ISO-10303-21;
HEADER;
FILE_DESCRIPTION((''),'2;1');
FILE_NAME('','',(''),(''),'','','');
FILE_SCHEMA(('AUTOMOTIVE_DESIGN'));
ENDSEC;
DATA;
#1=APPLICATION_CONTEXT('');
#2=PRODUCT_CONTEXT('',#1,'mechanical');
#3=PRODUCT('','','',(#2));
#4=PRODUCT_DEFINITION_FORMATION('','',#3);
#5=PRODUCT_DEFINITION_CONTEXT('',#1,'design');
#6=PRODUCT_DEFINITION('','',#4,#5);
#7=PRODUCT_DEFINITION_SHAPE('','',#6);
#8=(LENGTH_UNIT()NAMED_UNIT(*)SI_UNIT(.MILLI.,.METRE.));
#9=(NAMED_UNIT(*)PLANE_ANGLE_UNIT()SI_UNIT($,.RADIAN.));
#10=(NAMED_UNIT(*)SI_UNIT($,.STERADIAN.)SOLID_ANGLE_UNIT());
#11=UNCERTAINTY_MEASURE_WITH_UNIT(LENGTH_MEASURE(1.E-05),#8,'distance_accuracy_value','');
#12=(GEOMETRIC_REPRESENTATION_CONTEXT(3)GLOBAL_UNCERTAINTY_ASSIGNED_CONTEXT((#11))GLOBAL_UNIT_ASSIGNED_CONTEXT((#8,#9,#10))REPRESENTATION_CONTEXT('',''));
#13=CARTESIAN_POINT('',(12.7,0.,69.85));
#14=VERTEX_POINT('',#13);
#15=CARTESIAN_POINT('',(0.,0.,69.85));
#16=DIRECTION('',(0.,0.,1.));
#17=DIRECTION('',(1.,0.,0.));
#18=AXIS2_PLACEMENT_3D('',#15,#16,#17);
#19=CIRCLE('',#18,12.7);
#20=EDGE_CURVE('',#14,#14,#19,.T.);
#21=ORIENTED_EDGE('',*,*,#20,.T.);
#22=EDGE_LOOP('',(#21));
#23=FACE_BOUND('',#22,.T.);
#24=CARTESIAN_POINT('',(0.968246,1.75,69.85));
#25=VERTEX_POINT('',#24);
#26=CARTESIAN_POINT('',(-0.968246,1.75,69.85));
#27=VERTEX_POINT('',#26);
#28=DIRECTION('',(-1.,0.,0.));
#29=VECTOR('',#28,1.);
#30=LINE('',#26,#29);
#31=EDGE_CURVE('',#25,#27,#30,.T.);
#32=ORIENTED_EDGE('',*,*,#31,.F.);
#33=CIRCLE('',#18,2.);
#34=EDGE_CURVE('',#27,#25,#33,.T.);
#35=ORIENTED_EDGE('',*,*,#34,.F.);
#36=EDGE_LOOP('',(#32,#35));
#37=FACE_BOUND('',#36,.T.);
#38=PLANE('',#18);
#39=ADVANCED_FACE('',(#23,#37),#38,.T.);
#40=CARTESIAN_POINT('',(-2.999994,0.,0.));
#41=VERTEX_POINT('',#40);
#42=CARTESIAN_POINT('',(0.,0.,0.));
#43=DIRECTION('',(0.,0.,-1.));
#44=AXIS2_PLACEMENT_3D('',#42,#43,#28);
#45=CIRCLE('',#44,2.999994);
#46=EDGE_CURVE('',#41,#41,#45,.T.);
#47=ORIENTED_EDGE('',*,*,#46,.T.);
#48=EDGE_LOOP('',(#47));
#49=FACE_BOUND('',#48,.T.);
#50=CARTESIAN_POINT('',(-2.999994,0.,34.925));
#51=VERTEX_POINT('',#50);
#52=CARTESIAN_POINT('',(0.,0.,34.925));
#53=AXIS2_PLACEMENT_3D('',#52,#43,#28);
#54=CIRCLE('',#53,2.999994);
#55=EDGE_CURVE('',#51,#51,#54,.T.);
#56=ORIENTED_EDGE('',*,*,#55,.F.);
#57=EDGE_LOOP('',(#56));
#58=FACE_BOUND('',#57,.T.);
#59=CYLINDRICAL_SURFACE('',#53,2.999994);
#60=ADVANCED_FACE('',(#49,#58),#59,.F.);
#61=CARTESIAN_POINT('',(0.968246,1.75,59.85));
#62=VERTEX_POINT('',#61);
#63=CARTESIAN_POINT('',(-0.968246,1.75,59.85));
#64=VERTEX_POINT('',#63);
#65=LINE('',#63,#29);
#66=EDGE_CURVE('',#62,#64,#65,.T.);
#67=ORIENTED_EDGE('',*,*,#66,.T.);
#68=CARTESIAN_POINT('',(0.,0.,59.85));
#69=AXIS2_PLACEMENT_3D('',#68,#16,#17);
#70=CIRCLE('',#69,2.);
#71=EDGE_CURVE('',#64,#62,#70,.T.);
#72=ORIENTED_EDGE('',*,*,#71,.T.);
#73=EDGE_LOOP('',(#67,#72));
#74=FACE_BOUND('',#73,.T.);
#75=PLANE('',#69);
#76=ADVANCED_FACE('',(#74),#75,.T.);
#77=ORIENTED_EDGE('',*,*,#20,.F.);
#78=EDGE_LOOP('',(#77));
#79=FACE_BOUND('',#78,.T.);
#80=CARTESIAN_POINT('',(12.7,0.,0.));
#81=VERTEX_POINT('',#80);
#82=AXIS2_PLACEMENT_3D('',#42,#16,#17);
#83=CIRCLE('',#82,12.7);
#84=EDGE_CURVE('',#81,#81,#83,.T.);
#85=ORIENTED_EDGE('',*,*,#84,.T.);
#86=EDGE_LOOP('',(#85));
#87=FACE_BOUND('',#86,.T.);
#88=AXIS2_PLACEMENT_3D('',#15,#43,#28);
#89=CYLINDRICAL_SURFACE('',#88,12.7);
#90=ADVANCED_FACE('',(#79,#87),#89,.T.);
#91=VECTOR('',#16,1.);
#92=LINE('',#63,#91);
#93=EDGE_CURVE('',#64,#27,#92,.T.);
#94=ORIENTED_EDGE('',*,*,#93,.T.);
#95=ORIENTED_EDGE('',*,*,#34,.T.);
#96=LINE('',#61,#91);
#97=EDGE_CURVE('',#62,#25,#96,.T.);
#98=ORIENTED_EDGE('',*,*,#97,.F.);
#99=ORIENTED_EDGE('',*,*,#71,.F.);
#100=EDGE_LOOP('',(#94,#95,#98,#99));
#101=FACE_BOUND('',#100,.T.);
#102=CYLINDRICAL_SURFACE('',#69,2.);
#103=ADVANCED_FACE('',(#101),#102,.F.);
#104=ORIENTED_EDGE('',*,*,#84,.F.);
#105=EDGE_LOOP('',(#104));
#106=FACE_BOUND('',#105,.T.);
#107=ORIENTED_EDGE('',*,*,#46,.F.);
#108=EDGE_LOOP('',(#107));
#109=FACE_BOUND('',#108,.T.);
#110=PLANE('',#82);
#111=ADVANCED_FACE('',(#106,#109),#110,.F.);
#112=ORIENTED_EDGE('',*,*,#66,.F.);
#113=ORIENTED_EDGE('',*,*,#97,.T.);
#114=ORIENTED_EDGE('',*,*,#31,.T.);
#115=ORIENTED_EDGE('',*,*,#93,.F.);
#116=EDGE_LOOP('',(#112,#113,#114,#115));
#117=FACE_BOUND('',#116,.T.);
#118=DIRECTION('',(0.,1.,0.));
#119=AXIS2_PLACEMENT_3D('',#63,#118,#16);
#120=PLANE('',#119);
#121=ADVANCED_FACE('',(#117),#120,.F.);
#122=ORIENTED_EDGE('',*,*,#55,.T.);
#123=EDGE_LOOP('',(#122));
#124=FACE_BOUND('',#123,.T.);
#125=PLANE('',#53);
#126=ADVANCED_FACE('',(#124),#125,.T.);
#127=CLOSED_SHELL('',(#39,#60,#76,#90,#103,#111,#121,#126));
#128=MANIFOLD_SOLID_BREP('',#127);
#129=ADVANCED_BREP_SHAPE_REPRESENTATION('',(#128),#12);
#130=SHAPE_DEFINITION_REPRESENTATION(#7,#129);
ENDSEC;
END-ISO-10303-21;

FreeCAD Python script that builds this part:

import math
import FreeCAD as App
import Part
import Sketcher

V = App.Vector
Q = App.Units.Quantity

doc = App.newDocument("Part")
body = doc.addObject("PartDesign::Body", "Body")

sketch1 = body.newObject("Sketcher::SketchObject", "Sketch")
sketch1.AttachmentSupport = (doc.getObject("XY_Plane"), [""])
sketch1.MapMode = "FlatFace"
sketch1.addGeometry(Part.Circle(V(0, 0, 0), V(0, 0, 1), 12.7), False)
sketch1.addConstraint([
    Sketcher.Constraint("Coincident", 0, 3, -1, 1),
    Sketcher.Constraint("Diameter", 0, Q("1 in")),
])
pad1 = body.newObject("PartDesign::Pad", "Pad")
pad1.Profile = sketch1
pad1.Length = Q("2.75 in")

sketch2 = body.newObject("Sketcher::SketchObject", "Sketch001")
sketch2.AttachmentSupport = (doc.getObject("XY_Plane"), [""])
sketch2.MapMode = "FlatFace"
sketch2.AttachmentOffset = App.Placement(V(0, 0, 2.75 * 25.4), App.Rotation())
sketch2.addGeometry([
    Part.LineSegment(V(0.968246, 1.75, 0), V(-0.968246, 1.75, 0)),
    Part.ArcOfCircle(Part.Circle(V(0, 0, 0), V(0, 0, 1), 2), math.radians(118.955024), math.radians(421.044976)),
], False)
sketch2.addConstraint([
    Sketcher.Constraint("Coincident", 0, 1, 1, 2),
    Sketcher.Constraint("Coincident", 1, 1, 0, 2),
    Sketcher.Constraint("Horizontal", 0),
    Sketcher.Constraint("Coincident", 1, 3, -1, 1),
    Sketcher.Constraint("Radius", 1, 2.0),
    Sketcher.Constraint("DistanceX", 0, 2, 0, 1, 1.936492),
])
pocket1 = body.newObject("PartDesign::Pocket", "Pocket")
pocket1.Profile = sketch2
pocket1.Length = 10

sketch3 = body.newObject("Sketcher::SketchObject", "Sketch002")
sketch3.AttachmentSupport = (doc.getObject("XY_Plane"), [""])
sketch3.MapMode = "FlatFace"
sketch3.addGeometry(Part.Circle(V(0, 0, 0), V(0, 0, 1), 2.999994), False)
sketch3.addConstraint([
    Sketcher.Constraint("Coincident", 0, 3, -1, 1),
    Sketcher.Constraint("Diameter", 0, 5.999988),
])
pocket2 = body.newObject("PartDesign::Pocket", "Pocket001")
pocket2.Profile = sketch3
pocket2.Length = Q("1.375 in")
pocket2.Reversed = True

doc.recompute()
